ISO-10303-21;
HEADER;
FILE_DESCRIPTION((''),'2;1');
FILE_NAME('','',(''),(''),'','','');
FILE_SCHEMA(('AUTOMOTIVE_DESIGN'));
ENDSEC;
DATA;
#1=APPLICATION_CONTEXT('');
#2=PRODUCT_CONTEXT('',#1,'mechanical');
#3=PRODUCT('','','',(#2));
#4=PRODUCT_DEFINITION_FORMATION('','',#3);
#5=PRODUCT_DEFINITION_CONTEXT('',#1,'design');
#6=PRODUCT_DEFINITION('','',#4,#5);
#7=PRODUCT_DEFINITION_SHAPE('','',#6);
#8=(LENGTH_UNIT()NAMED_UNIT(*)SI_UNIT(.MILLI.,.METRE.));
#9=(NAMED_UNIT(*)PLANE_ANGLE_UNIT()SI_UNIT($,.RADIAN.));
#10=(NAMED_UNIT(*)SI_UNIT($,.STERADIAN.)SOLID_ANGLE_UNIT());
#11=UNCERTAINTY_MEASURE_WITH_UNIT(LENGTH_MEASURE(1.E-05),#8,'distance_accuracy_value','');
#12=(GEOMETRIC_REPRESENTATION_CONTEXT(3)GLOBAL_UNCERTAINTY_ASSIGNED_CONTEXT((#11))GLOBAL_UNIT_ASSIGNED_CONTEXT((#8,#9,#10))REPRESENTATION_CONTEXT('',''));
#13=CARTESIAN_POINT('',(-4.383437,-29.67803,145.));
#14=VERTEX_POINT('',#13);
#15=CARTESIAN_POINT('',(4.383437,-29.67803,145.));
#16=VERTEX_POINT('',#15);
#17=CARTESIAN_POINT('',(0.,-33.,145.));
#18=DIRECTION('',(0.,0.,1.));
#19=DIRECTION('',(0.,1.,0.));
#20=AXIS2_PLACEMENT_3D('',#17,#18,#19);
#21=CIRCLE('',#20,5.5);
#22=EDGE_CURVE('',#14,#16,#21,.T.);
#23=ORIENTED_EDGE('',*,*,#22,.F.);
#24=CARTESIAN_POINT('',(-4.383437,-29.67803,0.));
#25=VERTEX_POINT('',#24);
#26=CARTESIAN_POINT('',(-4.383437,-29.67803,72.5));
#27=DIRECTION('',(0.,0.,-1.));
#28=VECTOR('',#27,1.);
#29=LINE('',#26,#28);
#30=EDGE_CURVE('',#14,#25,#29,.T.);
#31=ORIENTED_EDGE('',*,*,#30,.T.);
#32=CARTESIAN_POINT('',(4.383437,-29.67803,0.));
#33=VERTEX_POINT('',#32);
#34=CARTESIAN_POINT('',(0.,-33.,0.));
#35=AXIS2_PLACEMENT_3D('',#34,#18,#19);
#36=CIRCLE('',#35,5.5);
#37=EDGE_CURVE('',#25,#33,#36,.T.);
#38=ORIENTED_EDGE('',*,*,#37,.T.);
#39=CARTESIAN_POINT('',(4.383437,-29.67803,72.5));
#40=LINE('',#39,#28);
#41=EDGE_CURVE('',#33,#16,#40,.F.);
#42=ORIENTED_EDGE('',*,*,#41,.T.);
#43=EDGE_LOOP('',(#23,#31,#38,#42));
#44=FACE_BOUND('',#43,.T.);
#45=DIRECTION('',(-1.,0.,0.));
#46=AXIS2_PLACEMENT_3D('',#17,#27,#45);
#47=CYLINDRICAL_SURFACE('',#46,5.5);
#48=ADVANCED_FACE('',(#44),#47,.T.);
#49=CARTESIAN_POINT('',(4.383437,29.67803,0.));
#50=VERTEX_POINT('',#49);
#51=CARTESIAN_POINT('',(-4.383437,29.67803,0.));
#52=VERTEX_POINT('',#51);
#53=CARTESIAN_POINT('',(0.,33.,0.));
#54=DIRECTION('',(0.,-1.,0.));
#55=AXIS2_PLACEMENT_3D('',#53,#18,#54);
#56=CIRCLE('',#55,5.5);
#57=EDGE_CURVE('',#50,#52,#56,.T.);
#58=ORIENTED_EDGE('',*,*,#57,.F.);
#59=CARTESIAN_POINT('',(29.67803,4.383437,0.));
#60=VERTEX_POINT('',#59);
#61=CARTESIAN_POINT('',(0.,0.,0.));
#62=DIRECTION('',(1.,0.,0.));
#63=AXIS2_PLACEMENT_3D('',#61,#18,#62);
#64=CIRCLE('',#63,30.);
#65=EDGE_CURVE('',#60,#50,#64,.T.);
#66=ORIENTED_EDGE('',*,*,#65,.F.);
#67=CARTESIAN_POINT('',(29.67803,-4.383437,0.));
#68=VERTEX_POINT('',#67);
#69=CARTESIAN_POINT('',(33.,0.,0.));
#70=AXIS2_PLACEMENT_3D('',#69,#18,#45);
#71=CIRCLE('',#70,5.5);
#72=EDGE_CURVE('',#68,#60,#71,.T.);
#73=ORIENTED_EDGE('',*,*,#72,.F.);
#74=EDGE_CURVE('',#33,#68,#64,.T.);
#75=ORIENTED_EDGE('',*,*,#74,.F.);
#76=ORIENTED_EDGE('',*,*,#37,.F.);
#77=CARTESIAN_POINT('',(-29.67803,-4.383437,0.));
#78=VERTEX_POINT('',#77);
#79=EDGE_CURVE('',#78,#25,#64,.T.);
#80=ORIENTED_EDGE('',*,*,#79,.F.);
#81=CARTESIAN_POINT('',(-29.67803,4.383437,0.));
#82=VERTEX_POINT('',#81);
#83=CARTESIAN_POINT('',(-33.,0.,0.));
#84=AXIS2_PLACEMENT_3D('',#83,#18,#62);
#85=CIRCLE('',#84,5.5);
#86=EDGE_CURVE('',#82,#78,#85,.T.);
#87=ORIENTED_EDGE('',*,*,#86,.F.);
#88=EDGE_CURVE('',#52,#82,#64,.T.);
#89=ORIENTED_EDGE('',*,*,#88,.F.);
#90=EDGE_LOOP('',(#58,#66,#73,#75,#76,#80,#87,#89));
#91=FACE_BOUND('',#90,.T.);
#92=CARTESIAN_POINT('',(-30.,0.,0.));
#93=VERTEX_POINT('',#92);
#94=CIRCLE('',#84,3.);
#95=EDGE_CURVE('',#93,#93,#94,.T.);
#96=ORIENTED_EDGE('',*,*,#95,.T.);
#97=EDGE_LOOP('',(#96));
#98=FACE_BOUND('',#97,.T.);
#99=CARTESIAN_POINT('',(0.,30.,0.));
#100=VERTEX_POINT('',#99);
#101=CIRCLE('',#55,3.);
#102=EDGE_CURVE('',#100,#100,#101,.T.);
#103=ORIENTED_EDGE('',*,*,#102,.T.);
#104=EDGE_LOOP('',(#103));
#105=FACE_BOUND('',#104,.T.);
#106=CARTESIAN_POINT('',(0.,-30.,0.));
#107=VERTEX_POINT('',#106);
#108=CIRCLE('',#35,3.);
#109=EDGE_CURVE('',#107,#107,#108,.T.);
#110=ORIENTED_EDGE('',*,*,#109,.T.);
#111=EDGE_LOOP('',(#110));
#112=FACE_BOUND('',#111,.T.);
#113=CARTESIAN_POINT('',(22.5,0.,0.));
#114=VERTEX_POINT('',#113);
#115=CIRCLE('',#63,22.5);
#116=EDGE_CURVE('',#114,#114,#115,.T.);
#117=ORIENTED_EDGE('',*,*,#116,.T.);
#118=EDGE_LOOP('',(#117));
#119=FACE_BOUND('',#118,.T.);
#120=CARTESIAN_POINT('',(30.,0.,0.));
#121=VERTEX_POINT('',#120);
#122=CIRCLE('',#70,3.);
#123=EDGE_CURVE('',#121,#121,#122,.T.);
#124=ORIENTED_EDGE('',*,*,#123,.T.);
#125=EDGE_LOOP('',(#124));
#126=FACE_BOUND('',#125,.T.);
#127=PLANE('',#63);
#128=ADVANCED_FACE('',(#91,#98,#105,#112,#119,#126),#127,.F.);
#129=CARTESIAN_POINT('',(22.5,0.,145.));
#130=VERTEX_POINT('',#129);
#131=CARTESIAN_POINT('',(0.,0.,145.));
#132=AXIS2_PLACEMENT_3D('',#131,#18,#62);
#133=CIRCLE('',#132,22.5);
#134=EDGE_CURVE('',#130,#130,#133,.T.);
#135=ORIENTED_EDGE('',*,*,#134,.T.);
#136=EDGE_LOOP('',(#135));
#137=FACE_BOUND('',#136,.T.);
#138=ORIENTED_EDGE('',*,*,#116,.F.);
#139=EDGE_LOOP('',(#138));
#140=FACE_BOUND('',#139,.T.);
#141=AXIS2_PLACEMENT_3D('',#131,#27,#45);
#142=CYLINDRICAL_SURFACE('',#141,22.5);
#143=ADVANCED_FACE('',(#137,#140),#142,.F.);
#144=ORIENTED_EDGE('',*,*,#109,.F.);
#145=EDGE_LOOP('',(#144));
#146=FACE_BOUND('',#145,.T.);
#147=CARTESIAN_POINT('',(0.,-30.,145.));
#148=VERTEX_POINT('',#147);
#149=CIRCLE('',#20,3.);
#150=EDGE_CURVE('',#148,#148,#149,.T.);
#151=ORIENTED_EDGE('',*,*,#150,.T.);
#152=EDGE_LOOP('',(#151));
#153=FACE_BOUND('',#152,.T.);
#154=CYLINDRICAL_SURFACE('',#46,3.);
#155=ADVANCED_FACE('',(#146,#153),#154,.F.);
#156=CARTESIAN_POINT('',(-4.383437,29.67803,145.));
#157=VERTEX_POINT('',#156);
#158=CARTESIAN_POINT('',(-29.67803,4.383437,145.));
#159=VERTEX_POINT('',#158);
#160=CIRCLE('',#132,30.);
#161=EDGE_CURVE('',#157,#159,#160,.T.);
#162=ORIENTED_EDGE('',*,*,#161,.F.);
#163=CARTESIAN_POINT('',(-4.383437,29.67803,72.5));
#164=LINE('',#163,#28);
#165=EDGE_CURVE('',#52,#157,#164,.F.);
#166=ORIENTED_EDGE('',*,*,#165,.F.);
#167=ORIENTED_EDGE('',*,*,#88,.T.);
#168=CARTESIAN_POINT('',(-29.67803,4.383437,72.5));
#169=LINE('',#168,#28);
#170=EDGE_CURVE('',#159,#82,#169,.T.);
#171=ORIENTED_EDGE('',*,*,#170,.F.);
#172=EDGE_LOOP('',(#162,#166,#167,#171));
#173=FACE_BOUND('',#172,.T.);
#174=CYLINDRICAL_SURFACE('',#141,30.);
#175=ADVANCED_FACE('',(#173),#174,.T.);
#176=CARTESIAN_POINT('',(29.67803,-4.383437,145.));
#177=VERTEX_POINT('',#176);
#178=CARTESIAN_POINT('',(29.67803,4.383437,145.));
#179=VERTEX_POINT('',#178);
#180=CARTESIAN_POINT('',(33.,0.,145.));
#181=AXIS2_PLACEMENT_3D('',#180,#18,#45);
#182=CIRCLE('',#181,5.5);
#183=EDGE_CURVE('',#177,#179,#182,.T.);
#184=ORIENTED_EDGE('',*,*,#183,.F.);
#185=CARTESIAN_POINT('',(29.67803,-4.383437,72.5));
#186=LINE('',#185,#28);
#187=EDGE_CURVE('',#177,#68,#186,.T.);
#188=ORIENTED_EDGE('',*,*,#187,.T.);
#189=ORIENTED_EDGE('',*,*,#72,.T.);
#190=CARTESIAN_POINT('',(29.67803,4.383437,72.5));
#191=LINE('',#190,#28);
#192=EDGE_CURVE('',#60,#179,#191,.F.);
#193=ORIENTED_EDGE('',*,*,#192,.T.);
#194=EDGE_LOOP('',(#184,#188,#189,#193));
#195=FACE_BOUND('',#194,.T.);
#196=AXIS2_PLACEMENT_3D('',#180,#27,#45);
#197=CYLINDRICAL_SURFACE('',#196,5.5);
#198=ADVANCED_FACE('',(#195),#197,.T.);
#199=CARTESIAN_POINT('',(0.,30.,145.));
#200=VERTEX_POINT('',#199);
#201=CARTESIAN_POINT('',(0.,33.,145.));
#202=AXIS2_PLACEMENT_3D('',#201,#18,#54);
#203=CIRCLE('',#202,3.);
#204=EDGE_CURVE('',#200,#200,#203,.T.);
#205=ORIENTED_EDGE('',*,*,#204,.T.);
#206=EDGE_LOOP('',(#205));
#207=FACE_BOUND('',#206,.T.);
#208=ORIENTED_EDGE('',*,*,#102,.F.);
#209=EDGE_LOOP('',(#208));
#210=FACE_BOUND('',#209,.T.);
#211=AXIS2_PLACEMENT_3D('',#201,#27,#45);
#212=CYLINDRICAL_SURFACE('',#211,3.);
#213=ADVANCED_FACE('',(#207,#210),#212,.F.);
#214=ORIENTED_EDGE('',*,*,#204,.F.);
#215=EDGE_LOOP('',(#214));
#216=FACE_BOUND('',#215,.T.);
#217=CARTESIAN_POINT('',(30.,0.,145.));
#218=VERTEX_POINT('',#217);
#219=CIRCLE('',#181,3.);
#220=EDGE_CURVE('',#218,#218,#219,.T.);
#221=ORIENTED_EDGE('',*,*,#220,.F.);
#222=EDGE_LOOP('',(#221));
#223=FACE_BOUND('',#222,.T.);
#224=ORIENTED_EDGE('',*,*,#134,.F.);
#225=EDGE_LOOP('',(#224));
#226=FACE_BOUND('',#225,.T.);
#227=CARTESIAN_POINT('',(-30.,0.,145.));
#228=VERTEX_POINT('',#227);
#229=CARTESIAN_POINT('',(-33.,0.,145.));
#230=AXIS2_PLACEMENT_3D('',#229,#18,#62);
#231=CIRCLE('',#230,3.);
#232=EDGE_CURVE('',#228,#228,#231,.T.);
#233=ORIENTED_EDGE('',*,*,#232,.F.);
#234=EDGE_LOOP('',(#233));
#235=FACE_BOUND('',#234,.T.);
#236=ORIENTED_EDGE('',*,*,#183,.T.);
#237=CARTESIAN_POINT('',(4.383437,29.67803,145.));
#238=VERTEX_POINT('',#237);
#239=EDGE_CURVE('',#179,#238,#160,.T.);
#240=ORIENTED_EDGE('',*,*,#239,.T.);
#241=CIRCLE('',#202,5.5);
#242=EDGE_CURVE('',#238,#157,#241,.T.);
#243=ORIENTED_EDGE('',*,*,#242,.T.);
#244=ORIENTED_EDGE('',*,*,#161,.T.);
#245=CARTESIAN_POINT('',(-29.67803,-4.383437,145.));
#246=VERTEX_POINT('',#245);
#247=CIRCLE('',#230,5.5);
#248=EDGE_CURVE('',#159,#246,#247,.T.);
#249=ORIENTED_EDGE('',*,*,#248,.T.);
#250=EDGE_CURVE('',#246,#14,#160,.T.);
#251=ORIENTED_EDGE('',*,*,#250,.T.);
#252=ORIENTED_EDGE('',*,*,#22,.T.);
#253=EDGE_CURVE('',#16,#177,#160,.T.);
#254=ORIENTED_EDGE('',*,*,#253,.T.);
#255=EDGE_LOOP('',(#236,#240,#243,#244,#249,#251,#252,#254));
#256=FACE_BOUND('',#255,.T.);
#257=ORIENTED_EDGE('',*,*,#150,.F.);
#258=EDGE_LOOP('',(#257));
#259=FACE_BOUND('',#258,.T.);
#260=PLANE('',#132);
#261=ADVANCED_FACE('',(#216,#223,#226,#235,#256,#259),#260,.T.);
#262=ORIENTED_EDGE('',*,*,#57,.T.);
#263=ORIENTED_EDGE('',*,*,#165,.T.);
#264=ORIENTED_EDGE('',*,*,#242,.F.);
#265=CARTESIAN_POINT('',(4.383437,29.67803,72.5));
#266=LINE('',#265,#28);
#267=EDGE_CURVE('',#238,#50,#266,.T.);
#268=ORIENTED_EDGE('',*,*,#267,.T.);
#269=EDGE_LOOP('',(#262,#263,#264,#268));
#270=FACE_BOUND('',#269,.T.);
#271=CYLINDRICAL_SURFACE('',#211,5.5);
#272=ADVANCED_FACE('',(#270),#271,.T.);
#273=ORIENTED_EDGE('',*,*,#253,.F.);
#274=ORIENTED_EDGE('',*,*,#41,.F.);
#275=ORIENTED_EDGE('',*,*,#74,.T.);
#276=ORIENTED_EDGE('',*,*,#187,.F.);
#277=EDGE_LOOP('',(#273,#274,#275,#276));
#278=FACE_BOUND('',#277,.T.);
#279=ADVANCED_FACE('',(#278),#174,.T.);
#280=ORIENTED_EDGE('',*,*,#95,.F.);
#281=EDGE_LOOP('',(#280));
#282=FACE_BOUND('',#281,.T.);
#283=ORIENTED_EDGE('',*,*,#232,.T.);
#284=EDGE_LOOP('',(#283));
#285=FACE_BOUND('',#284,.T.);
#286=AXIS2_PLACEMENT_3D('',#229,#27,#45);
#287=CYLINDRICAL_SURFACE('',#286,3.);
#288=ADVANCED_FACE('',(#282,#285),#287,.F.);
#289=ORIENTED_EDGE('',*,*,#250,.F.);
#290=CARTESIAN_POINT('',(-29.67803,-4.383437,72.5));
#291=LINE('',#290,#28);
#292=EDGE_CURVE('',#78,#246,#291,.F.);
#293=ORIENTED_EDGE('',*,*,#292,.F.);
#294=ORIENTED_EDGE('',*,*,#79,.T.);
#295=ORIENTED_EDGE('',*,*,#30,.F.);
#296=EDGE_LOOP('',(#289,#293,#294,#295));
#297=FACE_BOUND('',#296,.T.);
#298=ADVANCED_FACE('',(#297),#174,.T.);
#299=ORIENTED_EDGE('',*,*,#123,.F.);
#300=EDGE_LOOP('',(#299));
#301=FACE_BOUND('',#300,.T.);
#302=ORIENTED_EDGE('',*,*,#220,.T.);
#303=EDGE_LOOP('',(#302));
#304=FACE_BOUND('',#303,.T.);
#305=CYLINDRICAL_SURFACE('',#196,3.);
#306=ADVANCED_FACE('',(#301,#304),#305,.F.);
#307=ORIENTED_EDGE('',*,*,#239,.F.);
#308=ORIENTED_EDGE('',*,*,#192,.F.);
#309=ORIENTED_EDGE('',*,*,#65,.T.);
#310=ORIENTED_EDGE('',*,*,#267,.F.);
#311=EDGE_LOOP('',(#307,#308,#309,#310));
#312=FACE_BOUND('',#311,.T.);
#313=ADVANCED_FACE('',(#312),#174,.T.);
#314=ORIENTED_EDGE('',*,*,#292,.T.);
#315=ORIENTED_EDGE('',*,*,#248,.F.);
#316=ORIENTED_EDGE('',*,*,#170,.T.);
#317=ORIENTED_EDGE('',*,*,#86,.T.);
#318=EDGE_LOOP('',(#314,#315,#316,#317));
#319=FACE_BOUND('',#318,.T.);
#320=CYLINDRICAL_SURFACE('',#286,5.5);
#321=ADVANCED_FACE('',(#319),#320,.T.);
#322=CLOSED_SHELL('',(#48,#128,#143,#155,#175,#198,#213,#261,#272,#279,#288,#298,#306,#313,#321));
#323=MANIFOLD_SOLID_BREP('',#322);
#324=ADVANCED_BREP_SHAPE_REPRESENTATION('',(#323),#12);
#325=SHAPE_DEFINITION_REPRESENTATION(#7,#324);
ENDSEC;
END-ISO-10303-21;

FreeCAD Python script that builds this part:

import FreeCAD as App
import Part
import Sketcher
Q = App.Units.Quantity

doc = App.newDocument("Part")
body = doc.addObject("PartDesign::Body", "Body")

sketch1 = body.newObject("Sketcher::SketchObject", "Sketch")
sketch1.AttachmentSupport = (doc.getObject("XY_Plane"), [""])
sketch1.MapMode = "FlatFace"
sketch1.addGeometry(Part.Circle(App.Vector(0, 0, 0), App.Vector(0, 0, 1), 30), False)
sketch1.addGeometry(Part.Circle(App.Vector(0, 0, 0), App.Vector(0, 0, 1), 22), False)
sketch1.addConstraint(Sketcher.Constraint("Coincident", 0, 3, -1, 1))
sketch1.addConstraint(Sketcher.Constraint("Coincident", 1, 3, -1, 1))
sketch1.addConstraint(Sketcher.Constraint("Diameter", 0, Q("60 mm")))
sketch1.addConstraint(Sketcher.Constraint("Diameter", 1, Q("45 mm")))
pad1 = body.newObject("PartDesign::Pad", "Pad")
pad1.Profile = sketch1
pad1.Length = 145

sketch2 = body.newObject("Sketcher::SketchObject", "Sketch001")
sketch2.AttachmentSupport = (doc.getObject("XY_Plane"), [""])
sketch2.MapMode = "FlatFace"
sketch2.addGeometry(Part.Circle(App.Vector(-33, 0, 0), App.Vector(0, 0, 1), 5.5), False)
sketch2.addGeometry(Part.Circle(App.Vector(-33, 0, 0), App.Vector(0, 0, 1), 3), False)
sketch2.addConstraint(Sketcher.Constraint("Coincident", 1, 3, 0, 3))
sketch2.addConstraint(Sketcher.Constraint("PointOnObject", 0, 3, -1))
sketch2.addConstraint(Sketcher.Constraint("Diameter", 0, Q("11 mm")))
sketch2.addConstraint(Sketcher.Constraint("Diameter", 1, Q("6 mm")))
sketch2.addConstraint(Sketcher.Constraint("DistanceX", 0, 3, -1, 1, Q("33 mm")))
pad2 = body.newObject("PartDesign::Pad", "Pad001")
pad2.Profile = sketch2
pad2.Length = 145
doc.recompute()

polarpattern = body.newObject("PartDesign::PolarPattern", "PolarPattern")
polarpattern.Originals = [pad2]
polarpattern.Axis = (doc.getObject("Z_Axis"), [""])
polarpattern.Angle = 360
polarpattern.Occurrences = 4
body.Tip = polarpattern

doc.recompute()
